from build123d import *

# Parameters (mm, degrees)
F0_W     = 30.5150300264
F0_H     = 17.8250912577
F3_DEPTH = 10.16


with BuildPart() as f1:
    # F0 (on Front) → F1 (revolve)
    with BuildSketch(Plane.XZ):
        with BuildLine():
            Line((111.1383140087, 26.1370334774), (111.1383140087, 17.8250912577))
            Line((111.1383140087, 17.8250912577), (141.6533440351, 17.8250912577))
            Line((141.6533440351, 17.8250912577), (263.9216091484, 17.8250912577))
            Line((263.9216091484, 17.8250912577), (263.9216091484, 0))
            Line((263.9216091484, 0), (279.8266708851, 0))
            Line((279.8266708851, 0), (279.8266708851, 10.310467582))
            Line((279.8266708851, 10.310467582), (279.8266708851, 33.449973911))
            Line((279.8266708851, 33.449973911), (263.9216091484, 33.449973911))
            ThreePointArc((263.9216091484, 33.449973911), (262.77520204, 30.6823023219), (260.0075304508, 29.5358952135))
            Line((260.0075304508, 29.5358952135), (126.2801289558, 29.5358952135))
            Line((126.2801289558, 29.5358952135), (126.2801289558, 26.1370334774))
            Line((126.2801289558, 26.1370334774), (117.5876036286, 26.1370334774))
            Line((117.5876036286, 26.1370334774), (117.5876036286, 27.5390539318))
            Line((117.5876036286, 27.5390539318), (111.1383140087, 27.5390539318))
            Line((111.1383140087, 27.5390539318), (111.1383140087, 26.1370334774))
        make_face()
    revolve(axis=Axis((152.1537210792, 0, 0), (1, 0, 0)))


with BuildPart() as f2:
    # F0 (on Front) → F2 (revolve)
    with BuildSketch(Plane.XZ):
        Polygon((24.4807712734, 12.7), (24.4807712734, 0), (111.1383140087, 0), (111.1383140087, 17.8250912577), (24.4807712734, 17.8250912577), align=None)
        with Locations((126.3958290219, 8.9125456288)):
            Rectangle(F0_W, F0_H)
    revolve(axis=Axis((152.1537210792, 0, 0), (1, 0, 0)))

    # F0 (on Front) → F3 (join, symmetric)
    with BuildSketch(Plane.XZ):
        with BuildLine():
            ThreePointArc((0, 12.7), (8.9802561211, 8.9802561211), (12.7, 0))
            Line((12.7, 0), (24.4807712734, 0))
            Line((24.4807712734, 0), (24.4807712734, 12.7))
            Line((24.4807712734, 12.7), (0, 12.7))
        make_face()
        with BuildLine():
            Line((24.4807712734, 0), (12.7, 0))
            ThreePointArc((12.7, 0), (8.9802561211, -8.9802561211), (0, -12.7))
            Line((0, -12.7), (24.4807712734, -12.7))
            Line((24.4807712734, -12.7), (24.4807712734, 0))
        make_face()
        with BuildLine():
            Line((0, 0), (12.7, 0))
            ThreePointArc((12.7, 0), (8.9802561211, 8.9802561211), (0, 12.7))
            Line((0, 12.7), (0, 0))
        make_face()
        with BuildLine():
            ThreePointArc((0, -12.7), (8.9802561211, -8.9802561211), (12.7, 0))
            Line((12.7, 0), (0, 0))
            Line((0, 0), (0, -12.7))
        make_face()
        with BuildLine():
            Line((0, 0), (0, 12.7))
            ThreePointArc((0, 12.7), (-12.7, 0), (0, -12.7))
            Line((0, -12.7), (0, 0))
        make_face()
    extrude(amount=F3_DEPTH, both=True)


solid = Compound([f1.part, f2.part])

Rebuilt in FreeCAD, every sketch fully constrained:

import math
import FreeCAD as App
import Part
import Sketcher

V = App.Vector
Q = App.Units.Quantity

doc = App.newDocument("Part")
body = doc.addObject("PartDesign::Body", "Body")

# Sketch on XZ plane
sketch1 = body.newObject("Sketcher::SketchObject", "Sketch")
sketch1.AttachmentSupport = (doc.getObject("XZ_Plane"), [""])
sketch1.MapMode = "FlatFace"
sketch1.addGeometry([
    Part.LineSegment(V(111.1, 17.8, 0), V(263.9, 17.8, 0)),  # 0
    Part.LineSegment(V(263.9, 17.8, 0), V(263.9, 0, 0)),  # 1
    Part.LineSegment(V(263.9, 0, 0), V(279.8, 0, 0)),  # 2
    Part.LineSegment(V(279.8, 0, 0), V(279.8, 33.4, 0)),  # 3
    Part.LineSegment(V(279.8, 33.4, 0), V(263.9, 33.4, 0)),  # 4
    Part.ArcOfCircle(Part.Circle(V(260, 33.4, 0), V(0, 0, 1), 3.9), math.radians(-90), math.radians(0)),  # 5
    Part.LineSegment(V(260, 29.5, 0), V(126.3, 29.5, 0)),  # 6
    Part.LineSegment(V(126.3, 29.5, 0), V(126.3, 26.1, 0)),  # 7
    Part.LineSegment(V(126.3, 26.1, 0), V(117.6, 26.1, 0)),  # 8
    Part.LineSegment(V(117.6, 26.1, 0), V(117.6, 27.5, 0)),  # 9
    Part.LineSegment(V(117.6, 27.5, 0), V(111.1, 27.5, 0)),  # 10
    Part.LineSegment(V(111.1, 27.5, 0), V(111.1, 17.8, 0)),  # 11
], False)
sketch1.addConstraint([
    Sketcher.Constraint("Coincident", 0, 2, 1, 1),
    Sketcher.Constraint("Coincident", 1, 2, 2, 1),
    Sketcher.Constraint("Coincident", 2, 2, 3, 1),
    Sketcher.Constraint("Coincident", 3, 2, 4, 1),
    Sketcher.Constraint("Coincident", 4, 2, 5, 2),
    Sketcher.Constraint("Tangent", 5, 1, 6, 1),
    Sketcher.Constraint("Coincident", 6, 2, 7, 1),
    Sketcher.Constraint("Coincident", 7, 2, 8, 1),
    Sketcher.Constraint("Coincident", 8, 2, 9, 1),
    Sketcher.Constraint("Coincident", 9, 2, 10, 1),
    Sketcher.Constraint("Coincident", 10, 2, 11, 1),
    Sketcher.Constraint("Coincident", 11, 2, 0, 1),
    Sketcher.Constraint("Horizontal", 0),
    Sketcher.Constraint("Vertical", 1),
    Sketcher.Constraint("Horizontal", 2),
    Sketcher.Constraint("Vertical", 3),
    Sketcher.Constraint("Horizontal", 4),
    Sketcher.Constraint("Horizontal", 6),
    Sketcher.Constraint("Vertical", 7),
    Sketcher.Constraint("Horizontal", 8),
    Sketcher.Constraint("Vertical", 9),
    Sketcher.Constraint("Horizontal", 10),
    Sketcher.Constraint("Vertical", 11),
    Sketcher.Constraint("PointOnObject", 1, 2, -1),
    Sketcher.Constraint("Horizontal", 5, 3, 3, 2),
    Sketcher.Constraint("Vertical", 1, 2, 4, 2),
    Sketcher.Constraint("Radius", 5, Q("3.914079 mm")),
    Sketcher.Constraint("DistanceX", 6, 2, 6, 1, Q("133.727401 mm")),
    Sketcher.Constraint("DistanceX", 2, 1, 2, 2, Q("15.905062 mm")),
    Sketcher.Constraint("DistanceX", 10, 2, 10, 1, Q("6.44929 mm")),
    Sketcher.Constraint("DistanceY", 1, 2, 1, 1, Q("17.825091 mm")),
    Sketcher.Constraint("DistanceY", 7, 2, 7, 1, Q("3.398862 mm")),
    Sketcher.Constraint("DistanceY", 9, 1, 9, 2, Q("1.40202 mm")),
    Sketcher.Constraint("DistanceX", 0, 1, 0, 2, Q("152.783295 mm")),
    Sketcher.Constraint("DistanceY", 3, 1, 3, 2, Q("33.449974 mm")),
    Sketcher.Constraint("DistanceX", -1, 1, 5, 3, Q("260.00753 mm")),
])
revolution = body.newObject("PartDesign::Revolution", "Revolution")
revolution.Profile = sketch1
revolution.ReferenceAxis = (sketch1, ["H_Axis"])
revolution.Angle = 360
body2 = doc.addObject("PartDesign::Body", "Body001")

# Sketch on XZ plane
sketch2 = body2.newObject("Sketcher::SketchObject", "Sketch001")
sketch2.AttachmentSupport = (doc.getObject("XZ_Plane001"), [""])
sketch2.MapMode = "FlatFace"
sketch2.addGeometry([
    Part.LineSegment(V(24, 0, 0), V(142, 0, 0)),
    Part.LineSegment(V(142, 0, 0), V(142, 18, 0)),
    Part.LineSegment(V(142, 18, 0), V(24, 18, 0)),
    Part.LineSegment(V(24, 18, 0), V(24, 0, 0)),
], False)
sketch2.addConstraint([
    Sketcher.Constraint("Coincident", 0, 2, 1, 1),
    Sketcher.Constraint("Coincident", 1, 2, 2, 1),
    Sketcher.Constraint("Coincident", 2, 2, 3, 1),
    Sketcher.Constraint("Coincident", 3, 2, 0, 1),
    Sketcher.Constraint("Horizontal", 0),
    Sketcher.Constraint("Vertical", 1),
    Sketcher.Constraint("Horizontal", 2),
    Sketcher.Constraint("Vertical", 3),
    Sketcher.Constraint("PointOnObject", 0, 2, -1),
    Sketcher.Constraint("DistanceY", 1, 1, 1, 2, Q("17.825091 mm")),
    Sketcher.Constraint("DistanceX", 0, 1, 0, 2, Q("117.172573 mm")),
    Sketcher.Constraint("DistanceX", -1, 1, 2, 2, Q("24.480771 mm")),
])
revolution2 = body2.newObject("PartDesign::Revolution", "Revolution001")
revolution2.Profile = sketch2
revolution2.ReferenceAxis = (sketch2, ["H_Axis"])
revolution2.Angle = 360

# Sketch on XZ plane
sketch3 = body2.newObject("Sketcher::SketchObject", "Sketch002")
sketch3.AttachmentSupport = (doc.getObject("XZ_Plane001"), [""])
sketch3.MapMode = "FlatFace"
sketch3.addGeometry([
    Part.LineSegment(V(0, -13, 0), V(24, -13, 0)),
    Part.LineSegment(V(24, -13, 0), V(24, 13, 0)),
    Part.LineSegment(V(24, 13, 0), V(0, 13, 0)),
    Part.ArcOfCircle(Part.Circle(V(0, 0, 0), V(0, 0, 1), 13), math.radians(90), math.radians(270)),
], False)
sketch3.addConstraint([
    Sketcher.Constraint("Coincident", 0, 2, 1, 1),
    Sketcher.Constraint("Coincident", 1, 2, 2, 1),
    Sketcher.Constraint("Tangent", 2, 2, 3, 1),
    Sketcher.Constraint("Tangent", 3, 2, 0, 1),
    Sketcher.Constraint("Horizontal", 0),
    Sketcher.Constraint("Vertical", 1),
    Sketcher.Constraint("Horizontal", 2),
    Sketcher.Constraint("Coincident", 3, 3, -1, 1),
    Sketcher.Constraint("Radius", 3, Q("0.5 in")),
    Sketcher.Constraint("DistanceX", 0, 1, 0, 2, Q("24.480771 mm")),
])
pad1 = body2.newObject("PartDesign::Pad", "Pad")
pad1.Profile = sketch3
pad1.Length = Q("0.8 in")
pad1.Midplane = True

doc.recompute()
